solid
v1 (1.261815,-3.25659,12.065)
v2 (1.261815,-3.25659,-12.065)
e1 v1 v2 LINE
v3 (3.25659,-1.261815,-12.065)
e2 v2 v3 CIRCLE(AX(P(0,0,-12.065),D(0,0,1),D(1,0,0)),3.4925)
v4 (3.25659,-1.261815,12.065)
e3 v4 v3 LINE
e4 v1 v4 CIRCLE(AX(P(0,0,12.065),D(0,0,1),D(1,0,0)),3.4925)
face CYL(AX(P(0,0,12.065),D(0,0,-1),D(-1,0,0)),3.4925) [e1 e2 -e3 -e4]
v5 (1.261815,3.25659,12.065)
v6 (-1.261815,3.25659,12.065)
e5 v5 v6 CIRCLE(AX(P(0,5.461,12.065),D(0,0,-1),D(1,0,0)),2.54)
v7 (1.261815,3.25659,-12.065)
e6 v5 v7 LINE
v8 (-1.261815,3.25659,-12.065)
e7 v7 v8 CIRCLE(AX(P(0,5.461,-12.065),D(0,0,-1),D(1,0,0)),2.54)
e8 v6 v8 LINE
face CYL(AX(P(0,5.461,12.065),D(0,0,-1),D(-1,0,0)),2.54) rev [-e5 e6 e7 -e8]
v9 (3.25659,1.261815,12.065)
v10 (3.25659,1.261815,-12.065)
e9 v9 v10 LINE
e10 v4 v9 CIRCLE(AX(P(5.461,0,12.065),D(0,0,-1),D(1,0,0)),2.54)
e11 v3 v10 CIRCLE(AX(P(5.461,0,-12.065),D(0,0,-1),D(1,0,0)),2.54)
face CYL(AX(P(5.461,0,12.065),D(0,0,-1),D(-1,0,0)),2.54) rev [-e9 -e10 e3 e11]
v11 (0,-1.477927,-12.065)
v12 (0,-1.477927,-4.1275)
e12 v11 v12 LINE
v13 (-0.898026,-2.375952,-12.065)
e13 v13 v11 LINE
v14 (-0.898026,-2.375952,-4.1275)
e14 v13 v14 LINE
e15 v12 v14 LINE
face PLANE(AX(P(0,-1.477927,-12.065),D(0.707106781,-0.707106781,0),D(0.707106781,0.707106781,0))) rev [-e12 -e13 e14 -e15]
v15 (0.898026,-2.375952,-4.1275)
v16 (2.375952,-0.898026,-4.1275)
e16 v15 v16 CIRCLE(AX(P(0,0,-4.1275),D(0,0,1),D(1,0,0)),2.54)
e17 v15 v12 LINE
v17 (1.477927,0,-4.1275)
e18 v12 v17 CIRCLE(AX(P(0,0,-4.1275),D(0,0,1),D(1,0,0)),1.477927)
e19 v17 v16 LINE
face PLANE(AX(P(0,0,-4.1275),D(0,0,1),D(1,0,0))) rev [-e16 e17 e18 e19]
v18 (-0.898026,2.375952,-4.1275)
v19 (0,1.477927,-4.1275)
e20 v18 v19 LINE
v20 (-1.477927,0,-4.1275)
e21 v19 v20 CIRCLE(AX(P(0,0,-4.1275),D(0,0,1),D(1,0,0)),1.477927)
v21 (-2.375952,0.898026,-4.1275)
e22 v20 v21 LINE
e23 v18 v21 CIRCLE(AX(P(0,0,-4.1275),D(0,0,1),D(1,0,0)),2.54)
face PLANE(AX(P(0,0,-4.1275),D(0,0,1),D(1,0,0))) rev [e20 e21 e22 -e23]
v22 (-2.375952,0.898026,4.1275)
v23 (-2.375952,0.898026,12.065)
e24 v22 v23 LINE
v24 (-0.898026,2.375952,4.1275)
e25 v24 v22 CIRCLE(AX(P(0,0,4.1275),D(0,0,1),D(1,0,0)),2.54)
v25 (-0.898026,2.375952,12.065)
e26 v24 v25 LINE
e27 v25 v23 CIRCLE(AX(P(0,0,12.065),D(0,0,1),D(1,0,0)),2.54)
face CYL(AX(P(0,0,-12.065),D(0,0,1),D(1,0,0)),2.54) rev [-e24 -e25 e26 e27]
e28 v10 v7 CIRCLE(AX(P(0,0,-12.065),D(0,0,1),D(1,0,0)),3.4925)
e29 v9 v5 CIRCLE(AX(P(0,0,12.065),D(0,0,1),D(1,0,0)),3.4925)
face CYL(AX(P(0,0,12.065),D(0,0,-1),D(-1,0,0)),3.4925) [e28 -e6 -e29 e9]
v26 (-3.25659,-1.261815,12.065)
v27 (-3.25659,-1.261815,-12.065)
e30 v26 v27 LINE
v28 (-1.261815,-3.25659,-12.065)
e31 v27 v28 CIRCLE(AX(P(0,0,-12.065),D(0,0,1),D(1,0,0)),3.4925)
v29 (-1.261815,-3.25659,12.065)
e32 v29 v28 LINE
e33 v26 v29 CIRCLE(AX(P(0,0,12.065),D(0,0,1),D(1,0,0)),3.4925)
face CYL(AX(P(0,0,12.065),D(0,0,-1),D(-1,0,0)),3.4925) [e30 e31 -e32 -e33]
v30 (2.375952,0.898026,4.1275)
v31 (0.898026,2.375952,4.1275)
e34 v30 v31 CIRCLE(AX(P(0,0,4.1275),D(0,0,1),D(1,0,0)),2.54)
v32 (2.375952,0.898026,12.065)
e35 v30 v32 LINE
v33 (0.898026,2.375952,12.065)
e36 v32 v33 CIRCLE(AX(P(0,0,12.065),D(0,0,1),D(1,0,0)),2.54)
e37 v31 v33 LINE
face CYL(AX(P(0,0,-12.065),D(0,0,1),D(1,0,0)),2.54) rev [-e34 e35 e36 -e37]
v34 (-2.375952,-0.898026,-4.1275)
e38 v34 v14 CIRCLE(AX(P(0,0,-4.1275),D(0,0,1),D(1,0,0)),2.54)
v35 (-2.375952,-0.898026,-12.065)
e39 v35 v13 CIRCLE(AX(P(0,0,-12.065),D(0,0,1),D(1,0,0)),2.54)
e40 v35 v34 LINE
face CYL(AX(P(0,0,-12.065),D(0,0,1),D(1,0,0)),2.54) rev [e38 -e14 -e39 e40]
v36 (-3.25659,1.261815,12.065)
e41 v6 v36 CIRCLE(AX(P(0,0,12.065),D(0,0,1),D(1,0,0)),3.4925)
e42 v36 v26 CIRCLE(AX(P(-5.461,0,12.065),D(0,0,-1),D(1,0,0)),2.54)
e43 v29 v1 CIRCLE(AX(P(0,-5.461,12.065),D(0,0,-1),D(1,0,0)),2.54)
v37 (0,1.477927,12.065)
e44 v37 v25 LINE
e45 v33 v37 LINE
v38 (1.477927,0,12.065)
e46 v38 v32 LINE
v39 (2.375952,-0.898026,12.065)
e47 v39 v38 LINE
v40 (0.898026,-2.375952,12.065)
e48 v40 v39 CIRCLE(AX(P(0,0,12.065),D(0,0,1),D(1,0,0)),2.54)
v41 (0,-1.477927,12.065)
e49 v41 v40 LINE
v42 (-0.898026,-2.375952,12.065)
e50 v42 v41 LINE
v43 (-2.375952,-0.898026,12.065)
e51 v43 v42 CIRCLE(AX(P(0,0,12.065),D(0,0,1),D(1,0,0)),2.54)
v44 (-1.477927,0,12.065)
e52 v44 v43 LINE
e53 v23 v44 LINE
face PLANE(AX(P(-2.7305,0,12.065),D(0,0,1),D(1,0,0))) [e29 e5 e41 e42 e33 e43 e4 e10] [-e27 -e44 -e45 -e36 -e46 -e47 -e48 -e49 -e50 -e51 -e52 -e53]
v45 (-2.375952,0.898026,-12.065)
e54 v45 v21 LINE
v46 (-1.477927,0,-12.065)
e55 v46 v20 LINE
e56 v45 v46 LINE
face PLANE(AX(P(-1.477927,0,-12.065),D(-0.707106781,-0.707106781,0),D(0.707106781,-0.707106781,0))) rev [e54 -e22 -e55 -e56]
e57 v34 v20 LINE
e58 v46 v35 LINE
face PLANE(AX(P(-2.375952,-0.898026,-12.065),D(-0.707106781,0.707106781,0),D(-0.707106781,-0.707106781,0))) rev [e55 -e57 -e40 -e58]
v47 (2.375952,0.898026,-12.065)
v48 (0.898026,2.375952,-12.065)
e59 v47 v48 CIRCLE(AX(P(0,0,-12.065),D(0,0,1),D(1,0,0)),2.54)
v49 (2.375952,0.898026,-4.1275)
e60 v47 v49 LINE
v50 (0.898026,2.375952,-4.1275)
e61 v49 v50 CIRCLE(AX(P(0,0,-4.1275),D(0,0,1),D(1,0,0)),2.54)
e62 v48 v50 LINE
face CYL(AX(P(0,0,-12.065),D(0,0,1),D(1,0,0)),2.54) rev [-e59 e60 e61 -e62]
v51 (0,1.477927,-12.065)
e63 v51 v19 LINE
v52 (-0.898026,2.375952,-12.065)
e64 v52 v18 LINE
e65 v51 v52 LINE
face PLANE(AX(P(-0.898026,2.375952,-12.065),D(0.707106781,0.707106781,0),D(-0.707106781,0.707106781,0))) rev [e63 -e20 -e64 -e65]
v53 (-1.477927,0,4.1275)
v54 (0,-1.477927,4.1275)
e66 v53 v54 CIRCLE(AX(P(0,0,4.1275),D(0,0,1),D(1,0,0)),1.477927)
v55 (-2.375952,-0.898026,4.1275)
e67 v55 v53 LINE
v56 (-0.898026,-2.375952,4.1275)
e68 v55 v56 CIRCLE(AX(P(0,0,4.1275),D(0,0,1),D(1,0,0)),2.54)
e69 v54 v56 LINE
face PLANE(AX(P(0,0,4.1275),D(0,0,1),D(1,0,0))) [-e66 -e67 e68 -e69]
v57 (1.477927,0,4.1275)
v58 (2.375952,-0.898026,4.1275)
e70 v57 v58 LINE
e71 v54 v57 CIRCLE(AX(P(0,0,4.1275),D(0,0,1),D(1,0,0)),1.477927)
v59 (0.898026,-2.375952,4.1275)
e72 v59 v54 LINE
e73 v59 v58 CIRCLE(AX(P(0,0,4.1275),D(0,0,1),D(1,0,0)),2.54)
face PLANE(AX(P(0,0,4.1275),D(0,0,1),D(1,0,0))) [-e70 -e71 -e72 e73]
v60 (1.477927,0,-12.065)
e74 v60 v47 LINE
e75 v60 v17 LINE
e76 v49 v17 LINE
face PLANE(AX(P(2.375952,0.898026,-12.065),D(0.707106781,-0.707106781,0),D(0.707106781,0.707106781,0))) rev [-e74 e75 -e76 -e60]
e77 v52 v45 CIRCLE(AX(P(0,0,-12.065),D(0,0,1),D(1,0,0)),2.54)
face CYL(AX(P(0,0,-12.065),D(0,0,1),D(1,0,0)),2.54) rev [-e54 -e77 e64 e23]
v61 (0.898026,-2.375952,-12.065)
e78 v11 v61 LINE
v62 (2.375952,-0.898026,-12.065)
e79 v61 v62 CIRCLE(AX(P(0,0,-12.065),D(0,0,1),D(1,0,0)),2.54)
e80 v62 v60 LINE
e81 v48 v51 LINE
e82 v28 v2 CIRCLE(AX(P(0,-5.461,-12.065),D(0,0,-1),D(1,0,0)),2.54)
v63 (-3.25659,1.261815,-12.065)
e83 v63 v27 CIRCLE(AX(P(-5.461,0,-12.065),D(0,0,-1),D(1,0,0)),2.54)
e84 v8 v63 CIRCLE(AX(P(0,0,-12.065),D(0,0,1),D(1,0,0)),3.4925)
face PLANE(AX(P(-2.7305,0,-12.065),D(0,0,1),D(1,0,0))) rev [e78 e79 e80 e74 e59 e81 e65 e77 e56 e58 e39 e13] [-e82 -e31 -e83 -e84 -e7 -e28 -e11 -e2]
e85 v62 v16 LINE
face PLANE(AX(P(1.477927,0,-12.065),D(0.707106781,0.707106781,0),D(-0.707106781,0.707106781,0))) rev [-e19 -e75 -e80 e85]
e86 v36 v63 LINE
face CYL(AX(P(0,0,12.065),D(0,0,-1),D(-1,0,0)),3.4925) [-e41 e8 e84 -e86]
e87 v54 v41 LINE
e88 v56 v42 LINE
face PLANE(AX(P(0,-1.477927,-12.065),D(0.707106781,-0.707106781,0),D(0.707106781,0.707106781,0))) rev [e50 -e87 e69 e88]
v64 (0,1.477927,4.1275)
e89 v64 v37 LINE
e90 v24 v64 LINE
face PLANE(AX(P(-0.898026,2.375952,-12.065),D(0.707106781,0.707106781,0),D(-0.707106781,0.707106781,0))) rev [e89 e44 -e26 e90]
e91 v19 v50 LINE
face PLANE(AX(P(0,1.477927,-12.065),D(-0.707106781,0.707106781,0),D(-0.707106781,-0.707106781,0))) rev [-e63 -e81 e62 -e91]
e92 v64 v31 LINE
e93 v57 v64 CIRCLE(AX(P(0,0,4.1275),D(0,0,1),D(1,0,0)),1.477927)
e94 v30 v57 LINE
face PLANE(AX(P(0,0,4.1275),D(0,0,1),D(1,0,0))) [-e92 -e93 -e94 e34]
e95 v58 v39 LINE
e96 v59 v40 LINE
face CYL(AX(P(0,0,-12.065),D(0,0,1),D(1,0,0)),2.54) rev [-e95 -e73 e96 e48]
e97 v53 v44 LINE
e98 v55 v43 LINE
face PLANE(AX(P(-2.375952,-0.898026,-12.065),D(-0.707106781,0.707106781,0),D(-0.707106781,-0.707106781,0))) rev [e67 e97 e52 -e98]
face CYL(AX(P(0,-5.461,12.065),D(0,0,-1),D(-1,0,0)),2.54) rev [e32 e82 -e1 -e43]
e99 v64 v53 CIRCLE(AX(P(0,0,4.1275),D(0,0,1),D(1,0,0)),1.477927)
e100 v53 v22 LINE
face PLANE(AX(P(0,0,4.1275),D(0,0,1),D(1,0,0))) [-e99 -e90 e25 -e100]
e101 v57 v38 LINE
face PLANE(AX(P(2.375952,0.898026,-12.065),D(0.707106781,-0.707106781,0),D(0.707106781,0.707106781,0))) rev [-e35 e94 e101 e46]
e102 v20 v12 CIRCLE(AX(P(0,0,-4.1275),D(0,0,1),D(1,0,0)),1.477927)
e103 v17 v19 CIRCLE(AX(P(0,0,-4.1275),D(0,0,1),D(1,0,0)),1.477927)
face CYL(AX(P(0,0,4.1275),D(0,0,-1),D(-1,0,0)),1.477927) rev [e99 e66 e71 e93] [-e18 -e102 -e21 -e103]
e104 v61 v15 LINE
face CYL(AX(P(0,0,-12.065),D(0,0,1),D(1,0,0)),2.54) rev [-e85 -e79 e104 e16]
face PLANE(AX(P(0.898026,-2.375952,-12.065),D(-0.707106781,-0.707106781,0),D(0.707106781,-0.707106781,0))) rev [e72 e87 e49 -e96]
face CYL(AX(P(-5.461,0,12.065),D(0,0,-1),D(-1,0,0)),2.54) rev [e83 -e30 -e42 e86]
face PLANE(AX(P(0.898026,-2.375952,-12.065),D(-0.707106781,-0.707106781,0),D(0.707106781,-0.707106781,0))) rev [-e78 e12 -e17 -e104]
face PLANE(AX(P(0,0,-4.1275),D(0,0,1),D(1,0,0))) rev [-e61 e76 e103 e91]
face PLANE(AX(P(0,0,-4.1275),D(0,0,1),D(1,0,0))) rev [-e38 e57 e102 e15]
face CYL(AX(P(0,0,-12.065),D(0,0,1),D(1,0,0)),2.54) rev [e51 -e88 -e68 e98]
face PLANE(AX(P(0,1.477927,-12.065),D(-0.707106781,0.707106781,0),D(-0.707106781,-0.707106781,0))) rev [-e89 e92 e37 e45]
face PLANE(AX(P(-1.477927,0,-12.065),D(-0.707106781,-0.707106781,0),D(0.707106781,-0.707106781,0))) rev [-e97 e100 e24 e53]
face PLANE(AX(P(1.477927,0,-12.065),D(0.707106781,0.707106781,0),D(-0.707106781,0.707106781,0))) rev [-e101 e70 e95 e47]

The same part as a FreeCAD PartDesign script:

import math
import FreeCAD as App
import Part
import Sketcher

V = App.Vector
Q = App.Units.Quantity

doc = App.newDocument("Part")
body = doc.addObject("PartDesign::Body", "Body")

# Sketch on XY plane
sketch1 = doc.addObject("Sketcher::SketchObject", "Sketch")
body.addObject(sketch1)
sketch1.AttachmentSupport = (doc.XY_Plane, [""])
sketch1.MapMode = "FlatFace"
sketch1.addGeometry([
    Part.ArcOfCircle(Part.Circle(V(0, 0, 0), V(0, 0, 1), 3.5), math.radians(-159), math.radians(-111)),  # 0
    Part.ArcOfCircle(Part.Circle(V(0, -5.5, 0), V(0, 0, 1), 2.5), math.radians(60), math.radians(120)),  # 1
    Part.ArcOfCircle(Part.Circle(V(0, 0, 0), V(0, 0, 1), 3.5), math.radians(-69), math.radians(-21)),  # 2
    Part.ArcOfCircle(Part.Circle(V(5.5, 0, 0), V(0, 0, 1), 2.5), math.radians(150), math.radians(210)),  # 3
    Part.ArcOfCircle(Part.Circle(V(0, 0, 0), V(0, 0, 1), 3.5), math.radians(21), math.radians(69)),  # 4
    Part.ArcOfCircle(Part.Circle(V(0, 5.5, 0), V(0, 0, 1), 2.5), math.radians(-120), math.radians(-60)),  # 5
    Part.ArcOfCircle(Part.Circle(V(0, 0, 0), V(0, 0, 1), 3.5), math.radians(111), math.radians(159)),  # 6
    Part.ArcOfCircle(Part.Circle(V(-5.5, 0, 0), V(0, 0, 1), 2.5), math.radians(-30), math.radians(30)),  # 7
], False)
sketch1.addConstraint([
    Sketcher.Constraint("Coincident", 0, 2, 1, 2),
    Sketcher.Constraint("Coincident", 1, 1, 2, 1),
    Sketcher.Constraint("Coincident", 2, 2, 3, 2),
    Sketcher.Constraint("Coincident", 3, 1, 4, 1),
    Sketcher.Constraint("Coincident", 4, 2, 5, 2),
    Sketcher.Constraint("Coincident", 5, 1, 6, 1),
    Sketcher.Constraint("Coincident", 6, 2, 7, 2),
    Sketcher.Constraint("Coincident", 7, 1, 0, 1),
    Sketcher.Constraint("Coincident", 0, 3, -1, 1),
    Sketcher.Constraint("Coincident", 2, 3, -1, 1),
    Sketcher.Constraint("Coincident", 4, 3, -1, 1),
    Sketcher.Constraint("Coincident", 6, 3, -1, 1),
    Sketcher.Constraint("Equal", 0, 2),
    Sketcher.Constraint("Equal", 1, 3),
    Sketcher.Constraint("Equal", 2, 4),
    Sketcher.Constraint("Equal", 3, 5),
    Sketcher.Constraint("Equal", 4, 6),
    Sketcher.Constraint("Equal", 5, 7),
    Sketcher.Constraint("Symmetric", 1, 3, 5, 3, -1, 1),
    Sketcher.Constraint("Symmetric", 3, 3, 7, 3, -1, 1),
    Sketcher.Constraint("PointOnObject", 1, 3, -2),
    Sketcher.Constraint("PointOnObject", 3, 3, -1),
    Sketcher.Constraint("Radius", 1, Q("0.1 in")),
    Sketcher.Constraint("Radius", 0, Q("0.1375 in")),
    Sketcher.Constraint("DistanceY", 1, 3, 5, 3, Q("0.43 in")),
    Sketcher.Constraint("DistanceX", -1, 1, 3, 3, Q("0.215 in")),
])
pad1 = doc.addObject("PartDesign::Pad", "Pad")
body.addObject(pad1)
pad1.Profile = sketch1
pad1.Length = Q("0.95 in")
pad1.Midplane = True

# Sketch on XY plane
sketch2 = doc.addObject("Sketcher::SketchObject", "Sketch001")
body.addObject(sketch2)
sketch2.AttachmentSupport = (doc.XY_Plane, [""])
sketch2.MapMode = "FlatFace"
sketch2.addGeometry([
    Part.LineSegment(V(0, 1.5, 0), V(-0.9, 2.4, 0)),  # 0
    Part.ArcOfCircle(Part.Circle(V(0, 0, 0), V(0, 0, 1), 2.5), math.radians(111), math.radians(159)),  # 1
    Part.LineSegment(V(-2.4, 0.9, 0), V(-1.5, 0, 0)),  # 2
    Part.LineSegment(V(-1.5, 0, 0), V(-2.4, -0.9, 0)),  # 3
    Part.ArcOfCircle(Part.Circle(V(0, 0, 0), V(0, 0, 1), 2.5), math.radians(-159), math.radians(-111)),  # 4
    Part.LineSegment(V(-0.9, -2.4, 0), V(0, -1.5, 0)),  # 5
    Part.LineSegment(V(0, -1.5, 0), V(0.9, -2.4, 0)),  # 6
    Part.ArcOfCircle(Part.Circle(V(0, 0, 0), V(0, 0, 1), 2.5), math.radians(-69), math.radians(-21)),  # 7
    Part.LineSegment(V(2.4, -0.9, 0), V(1.5, 0, 0)),  # 8
    Part.LineSegment(V(1.5, 0, 0), V(2.4, 0.9, 0)),  # 9
    Part.ArcOfCircle(Part.Circle(V(0, 0, 0), V(0, 0, 1), 2.5), math.radians(21), math.radians(69)),  # 10
    Part.LineSegment(V(0.9, 2.4, 0), V(0, 1.5, 0)),  # 11
], False)
sketch2.addConstraint([
    Sketcher.Constraint("Coincident", 0, 2, 1, 1),
    Sketcher.Constraint("Coincident", 1, 2, 2, 1),
    Sketcher.Constraint("Coincident", 2, 2, 3, 1),
    Sketcher.Constraint("Coincident", 3, 2, 4, 1),
    Sketcher.Constraint("Coincident", 4, 2, 5, 1),
    Sketcher.Constraint("Coincident", 5, 2, 6, 1),
    Sketcher.Constraint("Coincident", 6, 2, 7, 1),
    Sketcher.Constraint("Coincident", 7, 2, 8, 1),
    Sketcher.Constraint("Coincident", 8, 2, 9, 1),
    Sketcher.Constraint("Coincident", 9, 2, 10, 1),
    Sketcher.Constraint("Coincident", 10, 2, 11, 1),
    Sketcher.Constraint("Coincident", 11, 2, 0, 1),
    Sketcher.Constraint("Coincident", 1, 3, -1, 1),
    Sketcher.Constraint("Coincident", 4, 3, -1, 1),
    Sketcher.Constraint("Coincident", 7, 3, -1, 1),
    Sketcher.Constraint("Coincident", 10, 3, -1, 1),
    Sketcher.Constraint("Equal", 1, 4),
    Sketcher.Constraint("Equal", 4, 7),
    Sketcher.Constraint("Equal", 7, 10),
    Sketcher.Constraint("Symmetric", 2, 2, 8, 2, -1, 1),
    Sketcher.Constraint("Symmetric", 5, 2, 11, 2, -1, 1),
    Sketcher.Constraint("PointOnObject", 2, 2, -1),
    Sketcher.Constraint("PointOnObject", 5, 2, -2),
    Sketcher.Constraint("Parallel", 0, 2),
    Sketcher.Constraint("Perpendicular", 2, 3),
    Sketcher.Constraint("Parallel", 3, 5),
    Sketcher.Constraint("Perpendicular", 5, 6),
    Sketcher.Constraint("Parallel", 6, 8),
    Sketcher.Constraint("Perpendicular", 8, 9),
    Sketcher.Constraint("Parallel", 9, 11),
    Sketcher.Constraint("Horizontal", 4, 2, 6, 2),
    Sketcher.Constraint("Equal", 0, 2),
    Sketcher.Constraint("Radius", 1, Q("0.1 in")),
    Sketcher.Constraint("Distance", 0, Q("0.05 in")),
])
pocket1 = doc.addObject("PartDesign::Pocket", "Pocket")
body.addObject(pocket1)
pocket1.Profile = sketch2
pocket1.Type = "ThroughAll"
pocket1.Midplane = True

# Sketch on XY plane
sketch3 = doc.addObject("Sketcher::SketchObject", "Sketch002")
body.addObject(sketch3)
sketch3.AttachmentSupport = (doc.XY_Plane, [""])
sketch3.MapMode = "FlatFace"
sketch3.addGeometry([
    Part.Circle(V(0, 0, 0), V(0, 0, 1), 2.5),
    Part.Circle(V(0, 0, 0), V(0, 0, 1), 1.5),
], False)
sketch3.addConstraint([
    Sketcher.Constraint("Coincident", 0, 3, -1, 1),
    Sketcher.Constraint("Coincident", 1, 3, -1, 1),
    Sketcher.Constraint("Diameter", 0, Q("0.2 in")),
    Sketcher.Constraint("Diameter", 1, Q("2.955854 mm")),
])
pad2 = doc.addObject("PartDesign::Pad", "Pad001")
body.addObject(pad2)
pad2.Profile = sketch3
pad2.Length = Q("0.325 in")
pad2.Midplane = True

doc.recompute()
